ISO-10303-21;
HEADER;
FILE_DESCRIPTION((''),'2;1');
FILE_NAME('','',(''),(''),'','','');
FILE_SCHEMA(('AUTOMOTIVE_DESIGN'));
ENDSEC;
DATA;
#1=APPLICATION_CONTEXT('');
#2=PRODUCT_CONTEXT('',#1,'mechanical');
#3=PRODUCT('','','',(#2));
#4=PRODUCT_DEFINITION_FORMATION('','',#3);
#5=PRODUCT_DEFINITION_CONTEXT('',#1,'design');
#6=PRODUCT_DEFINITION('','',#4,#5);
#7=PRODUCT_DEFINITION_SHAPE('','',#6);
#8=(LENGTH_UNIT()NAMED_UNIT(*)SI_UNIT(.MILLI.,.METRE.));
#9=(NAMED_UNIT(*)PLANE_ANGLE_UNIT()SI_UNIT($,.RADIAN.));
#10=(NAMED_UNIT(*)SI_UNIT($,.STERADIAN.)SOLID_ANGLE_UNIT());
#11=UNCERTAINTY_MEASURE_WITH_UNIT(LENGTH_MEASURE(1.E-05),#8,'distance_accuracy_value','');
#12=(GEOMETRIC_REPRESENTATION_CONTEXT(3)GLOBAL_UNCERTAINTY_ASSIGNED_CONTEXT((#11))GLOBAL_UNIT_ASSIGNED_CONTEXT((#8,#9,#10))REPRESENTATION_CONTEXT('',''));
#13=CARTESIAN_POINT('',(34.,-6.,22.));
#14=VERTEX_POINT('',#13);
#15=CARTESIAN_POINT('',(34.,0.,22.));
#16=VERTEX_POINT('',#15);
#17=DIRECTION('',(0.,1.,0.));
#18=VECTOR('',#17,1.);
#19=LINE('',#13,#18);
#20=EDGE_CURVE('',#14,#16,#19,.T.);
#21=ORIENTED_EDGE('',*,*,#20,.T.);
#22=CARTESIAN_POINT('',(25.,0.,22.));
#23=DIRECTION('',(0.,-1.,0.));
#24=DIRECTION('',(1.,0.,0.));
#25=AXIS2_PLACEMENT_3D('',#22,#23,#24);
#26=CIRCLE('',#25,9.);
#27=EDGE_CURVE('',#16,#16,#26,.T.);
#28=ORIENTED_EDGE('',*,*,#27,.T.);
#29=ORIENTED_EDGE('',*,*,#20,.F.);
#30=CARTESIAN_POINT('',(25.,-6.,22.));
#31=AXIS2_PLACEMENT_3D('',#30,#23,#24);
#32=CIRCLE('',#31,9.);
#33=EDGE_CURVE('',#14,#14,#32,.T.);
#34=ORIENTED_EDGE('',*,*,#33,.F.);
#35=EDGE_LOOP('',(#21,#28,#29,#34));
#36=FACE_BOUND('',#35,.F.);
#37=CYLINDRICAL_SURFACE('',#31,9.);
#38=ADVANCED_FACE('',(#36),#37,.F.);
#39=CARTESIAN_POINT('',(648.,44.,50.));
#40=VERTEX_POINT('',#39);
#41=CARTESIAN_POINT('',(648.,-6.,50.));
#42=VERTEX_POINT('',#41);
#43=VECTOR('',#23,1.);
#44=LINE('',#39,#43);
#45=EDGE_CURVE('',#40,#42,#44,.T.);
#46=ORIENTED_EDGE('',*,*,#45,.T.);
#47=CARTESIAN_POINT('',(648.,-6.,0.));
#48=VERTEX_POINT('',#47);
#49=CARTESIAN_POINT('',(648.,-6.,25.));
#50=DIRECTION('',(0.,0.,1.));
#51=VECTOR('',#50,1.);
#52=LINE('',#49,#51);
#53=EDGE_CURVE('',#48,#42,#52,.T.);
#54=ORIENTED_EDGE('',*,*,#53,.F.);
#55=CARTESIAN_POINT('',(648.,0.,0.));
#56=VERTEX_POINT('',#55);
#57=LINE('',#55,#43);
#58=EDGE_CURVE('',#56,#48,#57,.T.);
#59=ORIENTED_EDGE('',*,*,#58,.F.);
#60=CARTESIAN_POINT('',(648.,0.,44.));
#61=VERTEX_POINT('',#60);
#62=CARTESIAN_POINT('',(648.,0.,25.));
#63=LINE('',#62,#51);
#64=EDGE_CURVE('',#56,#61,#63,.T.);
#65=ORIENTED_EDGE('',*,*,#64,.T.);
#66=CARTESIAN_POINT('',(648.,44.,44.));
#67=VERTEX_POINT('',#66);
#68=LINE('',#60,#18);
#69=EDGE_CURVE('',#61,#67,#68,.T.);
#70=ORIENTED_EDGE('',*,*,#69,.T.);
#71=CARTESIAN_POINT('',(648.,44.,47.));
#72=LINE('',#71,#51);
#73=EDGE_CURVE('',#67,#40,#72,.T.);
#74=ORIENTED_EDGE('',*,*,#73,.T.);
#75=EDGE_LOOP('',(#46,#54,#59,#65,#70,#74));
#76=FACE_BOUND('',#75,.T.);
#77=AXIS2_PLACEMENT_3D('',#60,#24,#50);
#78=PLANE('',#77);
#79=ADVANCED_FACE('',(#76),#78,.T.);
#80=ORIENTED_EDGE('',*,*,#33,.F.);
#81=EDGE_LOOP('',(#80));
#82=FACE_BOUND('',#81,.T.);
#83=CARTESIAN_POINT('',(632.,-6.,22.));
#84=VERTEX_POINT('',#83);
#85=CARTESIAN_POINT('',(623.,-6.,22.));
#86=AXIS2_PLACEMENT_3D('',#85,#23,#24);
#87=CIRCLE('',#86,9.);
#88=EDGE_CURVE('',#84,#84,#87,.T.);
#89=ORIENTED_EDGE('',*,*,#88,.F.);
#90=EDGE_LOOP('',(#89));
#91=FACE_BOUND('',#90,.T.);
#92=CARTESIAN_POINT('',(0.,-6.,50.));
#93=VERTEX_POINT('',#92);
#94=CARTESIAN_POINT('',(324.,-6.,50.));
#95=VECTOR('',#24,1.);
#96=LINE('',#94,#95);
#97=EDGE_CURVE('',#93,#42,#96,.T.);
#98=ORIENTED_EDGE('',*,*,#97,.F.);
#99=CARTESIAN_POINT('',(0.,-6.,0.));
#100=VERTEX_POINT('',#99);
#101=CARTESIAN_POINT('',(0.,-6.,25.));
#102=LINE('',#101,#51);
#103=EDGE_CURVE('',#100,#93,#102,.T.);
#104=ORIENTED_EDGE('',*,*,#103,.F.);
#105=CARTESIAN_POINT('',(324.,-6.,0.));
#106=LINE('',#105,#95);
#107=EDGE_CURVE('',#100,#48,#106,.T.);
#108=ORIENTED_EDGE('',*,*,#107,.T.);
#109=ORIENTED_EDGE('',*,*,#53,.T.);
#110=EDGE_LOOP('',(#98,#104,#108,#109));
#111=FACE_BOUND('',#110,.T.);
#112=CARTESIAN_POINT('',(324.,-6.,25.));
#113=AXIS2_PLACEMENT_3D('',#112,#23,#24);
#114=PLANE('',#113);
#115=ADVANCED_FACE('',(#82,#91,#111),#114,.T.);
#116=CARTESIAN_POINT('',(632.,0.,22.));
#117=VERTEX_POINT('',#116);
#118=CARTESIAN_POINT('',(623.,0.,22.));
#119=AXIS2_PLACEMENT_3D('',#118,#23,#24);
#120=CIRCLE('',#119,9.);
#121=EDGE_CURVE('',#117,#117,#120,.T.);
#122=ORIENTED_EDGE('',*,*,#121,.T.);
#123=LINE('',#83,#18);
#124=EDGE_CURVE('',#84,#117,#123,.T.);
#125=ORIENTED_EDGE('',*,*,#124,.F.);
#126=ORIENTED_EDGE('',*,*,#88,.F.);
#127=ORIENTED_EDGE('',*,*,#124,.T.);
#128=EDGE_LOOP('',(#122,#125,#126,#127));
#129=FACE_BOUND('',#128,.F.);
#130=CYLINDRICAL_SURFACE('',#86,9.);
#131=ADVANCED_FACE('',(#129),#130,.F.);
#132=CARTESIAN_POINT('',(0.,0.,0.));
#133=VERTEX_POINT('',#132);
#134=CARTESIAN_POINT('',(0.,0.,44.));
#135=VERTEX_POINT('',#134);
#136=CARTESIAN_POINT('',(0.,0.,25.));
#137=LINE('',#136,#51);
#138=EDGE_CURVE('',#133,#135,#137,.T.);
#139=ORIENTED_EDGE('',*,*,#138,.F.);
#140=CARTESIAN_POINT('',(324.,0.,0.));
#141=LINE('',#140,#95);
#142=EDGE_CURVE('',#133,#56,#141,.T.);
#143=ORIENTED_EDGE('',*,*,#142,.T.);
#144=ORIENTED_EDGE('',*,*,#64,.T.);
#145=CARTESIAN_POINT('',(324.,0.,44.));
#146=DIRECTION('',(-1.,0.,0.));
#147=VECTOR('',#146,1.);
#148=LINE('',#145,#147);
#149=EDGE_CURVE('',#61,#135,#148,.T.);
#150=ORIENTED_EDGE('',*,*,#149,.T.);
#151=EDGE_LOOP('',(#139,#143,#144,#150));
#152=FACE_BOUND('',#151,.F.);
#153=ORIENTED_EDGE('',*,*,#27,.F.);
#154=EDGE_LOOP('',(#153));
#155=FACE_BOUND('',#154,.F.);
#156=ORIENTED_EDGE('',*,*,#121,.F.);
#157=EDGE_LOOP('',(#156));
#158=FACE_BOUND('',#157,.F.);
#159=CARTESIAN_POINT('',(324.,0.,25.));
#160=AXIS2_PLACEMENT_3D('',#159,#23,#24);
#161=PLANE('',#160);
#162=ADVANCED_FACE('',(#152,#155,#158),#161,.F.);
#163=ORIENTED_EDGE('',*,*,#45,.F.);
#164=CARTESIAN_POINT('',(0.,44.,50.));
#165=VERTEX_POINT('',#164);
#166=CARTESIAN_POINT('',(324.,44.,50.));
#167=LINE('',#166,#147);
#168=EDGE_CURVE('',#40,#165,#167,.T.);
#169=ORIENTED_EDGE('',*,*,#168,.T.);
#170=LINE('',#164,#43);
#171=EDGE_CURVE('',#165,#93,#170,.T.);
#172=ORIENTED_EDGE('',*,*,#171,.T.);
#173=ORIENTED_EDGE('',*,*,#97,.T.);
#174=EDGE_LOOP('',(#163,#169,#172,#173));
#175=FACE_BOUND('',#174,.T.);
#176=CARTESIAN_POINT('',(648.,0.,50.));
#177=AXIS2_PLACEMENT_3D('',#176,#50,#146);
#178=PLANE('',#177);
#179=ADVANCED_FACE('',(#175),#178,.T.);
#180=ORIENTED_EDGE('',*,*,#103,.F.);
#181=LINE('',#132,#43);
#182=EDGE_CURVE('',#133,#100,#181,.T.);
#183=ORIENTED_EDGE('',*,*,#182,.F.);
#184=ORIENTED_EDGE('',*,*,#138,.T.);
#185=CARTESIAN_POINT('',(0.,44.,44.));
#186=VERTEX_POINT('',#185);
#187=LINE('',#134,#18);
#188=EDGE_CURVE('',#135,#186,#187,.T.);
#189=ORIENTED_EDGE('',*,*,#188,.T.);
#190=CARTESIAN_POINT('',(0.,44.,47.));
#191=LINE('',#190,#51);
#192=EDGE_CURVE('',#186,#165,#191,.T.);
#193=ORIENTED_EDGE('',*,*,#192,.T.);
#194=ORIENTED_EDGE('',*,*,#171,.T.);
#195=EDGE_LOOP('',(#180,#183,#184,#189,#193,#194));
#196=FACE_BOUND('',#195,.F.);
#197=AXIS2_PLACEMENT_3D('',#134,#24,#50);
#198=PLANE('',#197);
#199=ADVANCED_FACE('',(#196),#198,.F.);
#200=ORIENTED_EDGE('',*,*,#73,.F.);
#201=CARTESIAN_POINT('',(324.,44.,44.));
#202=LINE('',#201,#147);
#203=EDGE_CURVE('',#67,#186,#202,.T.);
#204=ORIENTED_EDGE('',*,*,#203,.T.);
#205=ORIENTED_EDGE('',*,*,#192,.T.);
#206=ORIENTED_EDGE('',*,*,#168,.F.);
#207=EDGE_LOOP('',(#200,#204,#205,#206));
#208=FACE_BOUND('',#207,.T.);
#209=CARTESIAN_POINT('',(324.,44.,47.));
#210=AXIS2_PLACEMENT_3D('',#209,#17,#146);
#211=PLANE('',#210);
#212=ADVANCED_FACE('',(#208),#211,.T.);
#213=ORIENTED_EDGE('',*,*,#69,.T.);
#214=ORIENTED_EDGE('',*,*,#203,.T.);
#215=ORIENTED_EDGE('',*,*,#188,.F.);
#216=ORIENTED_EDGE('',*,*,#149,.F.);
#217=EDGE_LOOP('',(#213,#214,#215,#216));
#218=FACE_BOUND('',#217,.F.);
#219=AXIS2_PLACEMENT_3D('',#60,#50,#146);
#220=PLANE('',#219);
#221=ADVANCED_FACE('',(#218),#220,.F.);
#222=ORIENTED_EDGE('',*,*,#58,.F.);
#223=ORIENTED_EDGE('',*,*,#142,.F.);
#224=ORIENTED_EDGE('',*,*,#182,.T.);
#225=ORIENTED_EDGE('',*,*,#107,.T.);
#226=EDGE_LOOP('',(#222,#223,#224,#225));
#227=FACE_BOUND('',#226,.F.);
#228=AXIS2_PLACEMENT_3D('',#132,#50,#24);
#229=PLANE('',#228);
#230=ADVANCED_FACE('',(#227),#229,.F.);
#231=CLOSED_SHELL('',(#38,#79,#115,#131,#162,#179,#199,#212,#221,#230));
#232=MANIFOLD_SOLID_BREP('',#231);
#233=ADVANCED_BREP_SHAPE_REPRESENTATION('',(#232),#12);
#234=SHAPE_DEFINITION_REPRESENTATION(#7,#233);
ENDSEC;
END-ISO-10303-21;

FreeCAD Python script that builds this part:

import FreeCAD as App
import Part
import Sketcher
from FreeCAD import Vector
Q = App.Units.Quantity


def add_polygon(sketch, points):
    """Adds a closed chain of lines whose ends are joined by coincident constraints."""
    first, n = sketch.GeometryCount, len(points)
    for a, b in zip(points, points[1:] + points[:1]):
        sketch.addGeometry(Part.LineSegment(App.Vector(*a, 0), App.Vector(*b, 0)), False)
    for i in range(n):
        sketch.addConstraint(Sketcher.Constraint("Coincident", first + i, 2, first + (i + 1) % n, 1))

doc = App.newDocument("Part")
body = doc.addObject("PartDesign::Body", "Body")

sketch1 = doc.addObject("Sketcher::SketchObject", "Sketch")
body.addObject(sketch1)
sketch1.AttachmentSupport = (doc.XZ_Plane, [""])
sketch1.MapMode = "FlatFace"
add_polygon(sketch1, [(0, 50), (0, 0), (648, 0), (648, 50)])
sketch1.addConstraint(Sketcher.Constraint("Vertical", 0))
sketch1.addConstraint(Sketcher.Constraint("Horizontal", 1))
sketch1.addConstraint(Sketcher.Constraint("Vertical", 2))
sketch1.addConstraint(Sketcher.Constraint("Horizontal", 3))
sketch1.addConstraint(Sketcher.Constraint("Coincident", 0, 2, -1, 1))
sketch1.addConstraint(Sketcher.Constraint("DistanceX", 1, 1, 1, 2, Q("648 mm")))
sketch1.addConstraint(Sketcher.Constraint("DistanceY", 0, 2, 0, 1, Q("50 mm")))
pad1 = doc.addObject("PartDesign::Pad", "Pad")
body.addObject(pad1)
pad1.Profile = sketch1
pad1.Length = 6

sketch2 = doc.addObject("Sketcher::SketchObject", "Sketch001")
body.addObject(sketch2)
sketch2.AttachmentSupport = (doc.XZ_Plane, [""])
sketch2.MapMode = "FlatFace"
add_polygon(sketch2, [(648, 50), (648, 44), (0, 44), (0, 50)])
sketch2.addConstraint(Sketcher.Constraint("Vertical", 0))
sketch2.addConstraint(Sketcher.Constraint("Horizontal", 1))
sketch2.addConstraint(Sketcher.Constraint("Vertical", 2))
sketch2.addConstraint(Sketcher.Constraint("Horizontal", 3))
sketch2.addConstraint(Sketcher.Constraint("PointOnObject", 1, 2, -2))
sketch2.addConstraint(Sketcher.Constraint("DistanceX", 1, 2, 1, 1, Q("648 mm")))
sketch2.addConstraint(Sketcher.Constraint("DistanceY", 0, 2, 0, 1, Q("6 mm")))
sketch2.addConstraint(Sketcher.Constraint("DistanceY", -1, 1, 0, 2, Q("44 mm")))
pad2 = doc.addObject("PartDesign::Pad", "Pad001")
body.addObject(pad2)
pad2.Profile = sketch2
pad2.Length = 44
pad2.Reversed = True

sketch3 = doc.addObject("Sketcher::SketchObject", "Sketch002")
body.addObject(sketch3)
sketch3.AttachmentSupport = (doc.XZ_Plane, [""])
sketch3.MapMode = "FlatFace"
sketch3.AttachmentOffset = App.Placement(Vector(0, 0, 6), App.Rotation())
sketch3.addGeometry(Part.Circle(Vector(25, 22, 0), Vector(0, 0, 1), 9), False)
sketch3.addGeometry(Part.Circle(Vector(623, 22, 0), Vector(0, 0, 1), 9), False)
sketch3.addConstraint(Sketcher.Constraint("Equal", 0, 1))
sketch3.addConstraint(Sketcher.Constraint("Horizontal", 0, 3, 1, 3))
sketch3.addConstraint(Sketcher.Constraint("Diameter", 0, Q("18 mm")))
sketch3.addConstraint(Sketcher.Constraint("DistanceX", -1, 1, 0, 3, Q("25 mm")))
sketch3.addConstraint(Sketcher.Constraint("DistanceY", -1, 1, 0, 3, Q("22 mm")))
sketch3.addConstraint(Sketcher.Constraint("DistanceX", -1, 1, 1, 3, Q("623 mm")))
pocket1 = doc.addObject("PartDesign::Pocket", "Pocket")
body.addObject(pocket1)
pocket1.Profile = sketch3
pocket1.Type = "ThroughAll"

doc.recompute()
